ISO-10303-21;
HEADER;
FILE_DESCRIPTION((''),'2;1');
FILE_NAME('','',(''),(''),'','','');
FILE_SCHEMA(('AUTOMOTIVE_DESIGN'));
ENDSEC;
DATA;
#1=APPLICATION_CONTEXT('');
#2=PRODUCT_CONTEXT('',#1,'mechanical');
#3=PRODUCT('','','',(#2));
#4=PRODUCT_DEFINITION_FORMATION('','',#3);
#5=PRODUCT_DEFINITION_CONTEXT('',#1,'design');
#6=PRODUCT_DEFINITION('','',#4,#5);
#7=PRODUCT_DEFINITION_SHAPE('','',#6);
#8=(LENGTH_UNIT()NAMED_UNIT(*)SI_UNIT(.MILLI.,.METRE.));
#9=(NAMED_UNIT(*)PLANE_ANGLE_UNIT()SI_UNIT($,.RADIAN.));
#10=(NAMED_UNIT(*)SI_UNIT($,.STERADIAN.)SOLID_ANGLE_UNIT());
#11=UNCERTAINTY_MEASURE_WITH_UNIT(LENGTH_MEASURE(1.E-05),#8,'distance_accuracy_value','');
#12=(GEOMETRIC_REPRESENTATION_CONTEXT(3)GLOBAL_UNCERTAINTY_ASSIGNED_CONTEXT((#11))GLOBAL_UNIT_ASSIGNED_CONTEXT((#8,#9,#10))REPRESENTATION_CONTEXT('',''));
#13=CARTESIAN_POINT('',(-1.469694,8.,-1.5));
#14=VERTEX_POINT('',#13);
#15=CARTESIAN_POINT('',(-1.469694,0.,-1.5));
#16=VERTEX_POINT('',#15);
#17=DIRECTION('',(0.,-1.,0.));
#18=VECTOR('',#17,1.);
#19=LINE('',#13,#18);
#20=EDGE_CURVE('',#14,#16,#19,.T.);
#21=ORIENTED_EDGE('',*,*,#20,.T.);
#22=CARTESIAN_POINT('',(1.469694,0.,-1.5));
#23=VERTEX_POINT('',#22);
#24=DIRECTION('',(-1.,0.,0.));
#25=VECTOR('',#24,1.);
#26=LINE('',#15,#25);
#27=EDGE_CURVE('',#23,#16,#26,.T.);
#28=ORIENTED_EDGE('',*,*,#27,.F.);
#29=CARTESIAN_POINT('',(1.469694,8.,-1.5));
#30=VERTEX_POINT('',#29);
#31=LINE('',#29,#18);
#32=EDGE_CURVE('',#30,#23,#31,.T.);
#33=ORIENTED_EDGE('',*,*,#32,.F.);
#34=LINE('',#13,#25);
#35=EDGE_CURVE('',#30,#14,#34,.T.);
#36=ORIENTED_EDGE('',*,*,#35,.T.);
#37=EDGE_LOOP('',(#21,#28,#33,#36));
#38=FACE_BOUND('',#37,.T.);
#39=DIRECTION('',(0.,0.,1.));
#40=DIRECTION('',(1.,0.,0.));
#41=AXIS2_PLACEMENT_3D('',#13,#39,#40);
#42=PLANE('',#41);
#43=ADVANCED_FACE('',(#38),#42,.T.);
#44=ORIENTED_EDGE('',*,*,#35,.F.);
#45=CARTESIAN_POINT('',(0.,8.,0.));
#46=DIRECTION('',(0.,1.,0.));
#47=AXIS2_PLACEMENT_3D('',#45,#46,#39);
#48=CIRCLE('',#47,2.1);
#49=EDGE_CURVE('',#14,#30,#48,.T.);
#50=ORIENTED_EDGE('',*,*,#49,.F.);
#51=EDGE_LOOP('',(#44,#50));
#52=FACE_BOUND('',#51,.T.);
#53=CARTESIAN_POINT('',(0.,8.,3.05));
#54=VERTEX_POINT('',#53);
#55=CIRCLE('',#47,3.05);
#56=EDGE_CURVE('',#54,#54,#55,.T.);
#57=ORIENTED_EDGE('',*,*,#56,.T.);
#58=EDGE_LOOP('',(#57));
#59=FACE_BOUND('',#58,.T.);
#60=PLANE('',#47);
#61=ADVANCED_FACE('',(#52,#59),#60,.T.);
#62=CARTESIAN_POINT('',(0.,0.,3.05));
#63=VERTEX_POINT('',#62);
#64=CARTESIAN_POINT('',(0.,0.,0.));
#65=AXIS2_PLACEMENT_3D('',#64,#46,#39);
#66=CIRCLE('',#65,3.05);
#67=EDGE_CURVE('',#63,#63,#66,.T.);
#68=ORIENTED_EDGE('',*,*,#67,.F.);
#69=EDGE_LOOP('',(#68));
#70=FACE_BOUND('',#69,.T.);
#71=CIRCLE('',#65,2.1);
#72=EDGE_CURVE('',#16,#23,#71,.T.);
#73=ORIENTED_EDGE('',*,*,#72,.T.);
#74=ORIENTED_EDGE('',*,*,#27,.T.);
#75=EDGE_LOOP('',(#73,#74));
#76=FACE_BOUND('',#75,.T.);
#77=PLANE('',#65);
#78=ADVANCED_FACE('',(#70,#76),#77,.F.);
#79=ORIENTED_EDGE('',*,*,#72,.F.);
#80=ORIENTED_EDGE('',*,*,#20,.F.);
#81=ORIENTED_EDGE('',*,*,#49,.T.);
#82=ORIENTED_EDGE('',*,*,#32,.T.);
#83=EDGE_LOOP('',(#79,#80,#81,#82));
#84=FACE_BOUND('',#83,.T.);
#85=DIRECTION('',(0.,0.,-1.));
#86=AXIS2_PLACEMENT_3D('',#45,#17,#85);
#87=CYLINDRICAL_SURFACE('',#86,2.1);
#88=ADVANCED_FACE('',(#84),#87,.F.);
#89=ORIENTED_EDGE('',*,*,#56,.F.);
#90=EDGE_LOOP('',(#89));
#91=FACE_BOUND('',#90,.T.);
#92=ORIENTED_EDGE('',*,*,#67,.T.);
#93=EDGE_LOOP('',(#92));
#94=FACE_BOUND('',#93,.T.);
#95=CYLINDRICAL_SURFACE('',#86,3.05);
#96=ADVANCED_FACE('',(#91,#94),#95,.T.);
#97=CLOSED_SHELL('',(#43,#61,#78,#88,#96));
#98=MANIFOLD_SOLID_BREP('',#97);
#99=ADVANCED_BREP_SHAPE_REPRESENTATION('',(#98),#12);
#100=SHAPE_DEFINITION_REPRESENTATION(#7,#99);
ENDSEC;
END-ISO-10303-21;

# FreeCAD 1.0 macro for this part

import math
import FreeCAD as App
import Part
import Sketcher
Q = App.Units.Quantity

doc = App.newDocument("Part")
body = doc.addObject("PartDesign::Body", "Body")

# Sketch on XZ plane
sketch1 = doc.addObject("Sketcher::SketchObject", "Sketch")
body.addObject(sketch1)
sketch1.AttachmentSupport = (doc.XZ_Plane, [""])
sketch1.MapMode = "FlatFace"
sketch1.addGeometry([
    Part.Circle(App.Vector(0, 0, 0), App.Vector(0, 0, 1), 3),
    Part.ArcOfCircle(Part.Circle(App.Vector(0, 0, 0), App.Vector(0, 0, 1), 2.1), math.radians(-46), math.radians(226)),
    Part.LineSegment(App.Vector(-1.5, -1.5, 0), App.Vector(1.5, -1.5, 0)),
], False)
sketch1.addConstraint([
    Sketcher.Constraint("Coincident", 1, 1, 2, 2),
    Sketcher.Constraint("Coincident", 2, 1, 1, 2),
    Sketcher.Constraint("Horizontal", 2),
    Sketcher.Constraint("Coincident", 0, 3, -1, 1),
    Sketcher.Constraint("Coincident", 1, 3, -1, 1),
    Sketcher.Constraint("Diameter", 0, Q("6.1 mm")),
    Sketcher.Constraint("Radius", 1, Q("2.1 mm")),
    Sketcher.Constraint("DistanceY", 1, 1, -1, 1, Q("1.5 mm")),
])
pad1 = doc.addObject("PartDesign::Pad", "Pad")
body.addObject(pad1)
pad1.Profile = sketch1
pad1.Length = 8
pad1.Reversed = True

doc.recompute()
